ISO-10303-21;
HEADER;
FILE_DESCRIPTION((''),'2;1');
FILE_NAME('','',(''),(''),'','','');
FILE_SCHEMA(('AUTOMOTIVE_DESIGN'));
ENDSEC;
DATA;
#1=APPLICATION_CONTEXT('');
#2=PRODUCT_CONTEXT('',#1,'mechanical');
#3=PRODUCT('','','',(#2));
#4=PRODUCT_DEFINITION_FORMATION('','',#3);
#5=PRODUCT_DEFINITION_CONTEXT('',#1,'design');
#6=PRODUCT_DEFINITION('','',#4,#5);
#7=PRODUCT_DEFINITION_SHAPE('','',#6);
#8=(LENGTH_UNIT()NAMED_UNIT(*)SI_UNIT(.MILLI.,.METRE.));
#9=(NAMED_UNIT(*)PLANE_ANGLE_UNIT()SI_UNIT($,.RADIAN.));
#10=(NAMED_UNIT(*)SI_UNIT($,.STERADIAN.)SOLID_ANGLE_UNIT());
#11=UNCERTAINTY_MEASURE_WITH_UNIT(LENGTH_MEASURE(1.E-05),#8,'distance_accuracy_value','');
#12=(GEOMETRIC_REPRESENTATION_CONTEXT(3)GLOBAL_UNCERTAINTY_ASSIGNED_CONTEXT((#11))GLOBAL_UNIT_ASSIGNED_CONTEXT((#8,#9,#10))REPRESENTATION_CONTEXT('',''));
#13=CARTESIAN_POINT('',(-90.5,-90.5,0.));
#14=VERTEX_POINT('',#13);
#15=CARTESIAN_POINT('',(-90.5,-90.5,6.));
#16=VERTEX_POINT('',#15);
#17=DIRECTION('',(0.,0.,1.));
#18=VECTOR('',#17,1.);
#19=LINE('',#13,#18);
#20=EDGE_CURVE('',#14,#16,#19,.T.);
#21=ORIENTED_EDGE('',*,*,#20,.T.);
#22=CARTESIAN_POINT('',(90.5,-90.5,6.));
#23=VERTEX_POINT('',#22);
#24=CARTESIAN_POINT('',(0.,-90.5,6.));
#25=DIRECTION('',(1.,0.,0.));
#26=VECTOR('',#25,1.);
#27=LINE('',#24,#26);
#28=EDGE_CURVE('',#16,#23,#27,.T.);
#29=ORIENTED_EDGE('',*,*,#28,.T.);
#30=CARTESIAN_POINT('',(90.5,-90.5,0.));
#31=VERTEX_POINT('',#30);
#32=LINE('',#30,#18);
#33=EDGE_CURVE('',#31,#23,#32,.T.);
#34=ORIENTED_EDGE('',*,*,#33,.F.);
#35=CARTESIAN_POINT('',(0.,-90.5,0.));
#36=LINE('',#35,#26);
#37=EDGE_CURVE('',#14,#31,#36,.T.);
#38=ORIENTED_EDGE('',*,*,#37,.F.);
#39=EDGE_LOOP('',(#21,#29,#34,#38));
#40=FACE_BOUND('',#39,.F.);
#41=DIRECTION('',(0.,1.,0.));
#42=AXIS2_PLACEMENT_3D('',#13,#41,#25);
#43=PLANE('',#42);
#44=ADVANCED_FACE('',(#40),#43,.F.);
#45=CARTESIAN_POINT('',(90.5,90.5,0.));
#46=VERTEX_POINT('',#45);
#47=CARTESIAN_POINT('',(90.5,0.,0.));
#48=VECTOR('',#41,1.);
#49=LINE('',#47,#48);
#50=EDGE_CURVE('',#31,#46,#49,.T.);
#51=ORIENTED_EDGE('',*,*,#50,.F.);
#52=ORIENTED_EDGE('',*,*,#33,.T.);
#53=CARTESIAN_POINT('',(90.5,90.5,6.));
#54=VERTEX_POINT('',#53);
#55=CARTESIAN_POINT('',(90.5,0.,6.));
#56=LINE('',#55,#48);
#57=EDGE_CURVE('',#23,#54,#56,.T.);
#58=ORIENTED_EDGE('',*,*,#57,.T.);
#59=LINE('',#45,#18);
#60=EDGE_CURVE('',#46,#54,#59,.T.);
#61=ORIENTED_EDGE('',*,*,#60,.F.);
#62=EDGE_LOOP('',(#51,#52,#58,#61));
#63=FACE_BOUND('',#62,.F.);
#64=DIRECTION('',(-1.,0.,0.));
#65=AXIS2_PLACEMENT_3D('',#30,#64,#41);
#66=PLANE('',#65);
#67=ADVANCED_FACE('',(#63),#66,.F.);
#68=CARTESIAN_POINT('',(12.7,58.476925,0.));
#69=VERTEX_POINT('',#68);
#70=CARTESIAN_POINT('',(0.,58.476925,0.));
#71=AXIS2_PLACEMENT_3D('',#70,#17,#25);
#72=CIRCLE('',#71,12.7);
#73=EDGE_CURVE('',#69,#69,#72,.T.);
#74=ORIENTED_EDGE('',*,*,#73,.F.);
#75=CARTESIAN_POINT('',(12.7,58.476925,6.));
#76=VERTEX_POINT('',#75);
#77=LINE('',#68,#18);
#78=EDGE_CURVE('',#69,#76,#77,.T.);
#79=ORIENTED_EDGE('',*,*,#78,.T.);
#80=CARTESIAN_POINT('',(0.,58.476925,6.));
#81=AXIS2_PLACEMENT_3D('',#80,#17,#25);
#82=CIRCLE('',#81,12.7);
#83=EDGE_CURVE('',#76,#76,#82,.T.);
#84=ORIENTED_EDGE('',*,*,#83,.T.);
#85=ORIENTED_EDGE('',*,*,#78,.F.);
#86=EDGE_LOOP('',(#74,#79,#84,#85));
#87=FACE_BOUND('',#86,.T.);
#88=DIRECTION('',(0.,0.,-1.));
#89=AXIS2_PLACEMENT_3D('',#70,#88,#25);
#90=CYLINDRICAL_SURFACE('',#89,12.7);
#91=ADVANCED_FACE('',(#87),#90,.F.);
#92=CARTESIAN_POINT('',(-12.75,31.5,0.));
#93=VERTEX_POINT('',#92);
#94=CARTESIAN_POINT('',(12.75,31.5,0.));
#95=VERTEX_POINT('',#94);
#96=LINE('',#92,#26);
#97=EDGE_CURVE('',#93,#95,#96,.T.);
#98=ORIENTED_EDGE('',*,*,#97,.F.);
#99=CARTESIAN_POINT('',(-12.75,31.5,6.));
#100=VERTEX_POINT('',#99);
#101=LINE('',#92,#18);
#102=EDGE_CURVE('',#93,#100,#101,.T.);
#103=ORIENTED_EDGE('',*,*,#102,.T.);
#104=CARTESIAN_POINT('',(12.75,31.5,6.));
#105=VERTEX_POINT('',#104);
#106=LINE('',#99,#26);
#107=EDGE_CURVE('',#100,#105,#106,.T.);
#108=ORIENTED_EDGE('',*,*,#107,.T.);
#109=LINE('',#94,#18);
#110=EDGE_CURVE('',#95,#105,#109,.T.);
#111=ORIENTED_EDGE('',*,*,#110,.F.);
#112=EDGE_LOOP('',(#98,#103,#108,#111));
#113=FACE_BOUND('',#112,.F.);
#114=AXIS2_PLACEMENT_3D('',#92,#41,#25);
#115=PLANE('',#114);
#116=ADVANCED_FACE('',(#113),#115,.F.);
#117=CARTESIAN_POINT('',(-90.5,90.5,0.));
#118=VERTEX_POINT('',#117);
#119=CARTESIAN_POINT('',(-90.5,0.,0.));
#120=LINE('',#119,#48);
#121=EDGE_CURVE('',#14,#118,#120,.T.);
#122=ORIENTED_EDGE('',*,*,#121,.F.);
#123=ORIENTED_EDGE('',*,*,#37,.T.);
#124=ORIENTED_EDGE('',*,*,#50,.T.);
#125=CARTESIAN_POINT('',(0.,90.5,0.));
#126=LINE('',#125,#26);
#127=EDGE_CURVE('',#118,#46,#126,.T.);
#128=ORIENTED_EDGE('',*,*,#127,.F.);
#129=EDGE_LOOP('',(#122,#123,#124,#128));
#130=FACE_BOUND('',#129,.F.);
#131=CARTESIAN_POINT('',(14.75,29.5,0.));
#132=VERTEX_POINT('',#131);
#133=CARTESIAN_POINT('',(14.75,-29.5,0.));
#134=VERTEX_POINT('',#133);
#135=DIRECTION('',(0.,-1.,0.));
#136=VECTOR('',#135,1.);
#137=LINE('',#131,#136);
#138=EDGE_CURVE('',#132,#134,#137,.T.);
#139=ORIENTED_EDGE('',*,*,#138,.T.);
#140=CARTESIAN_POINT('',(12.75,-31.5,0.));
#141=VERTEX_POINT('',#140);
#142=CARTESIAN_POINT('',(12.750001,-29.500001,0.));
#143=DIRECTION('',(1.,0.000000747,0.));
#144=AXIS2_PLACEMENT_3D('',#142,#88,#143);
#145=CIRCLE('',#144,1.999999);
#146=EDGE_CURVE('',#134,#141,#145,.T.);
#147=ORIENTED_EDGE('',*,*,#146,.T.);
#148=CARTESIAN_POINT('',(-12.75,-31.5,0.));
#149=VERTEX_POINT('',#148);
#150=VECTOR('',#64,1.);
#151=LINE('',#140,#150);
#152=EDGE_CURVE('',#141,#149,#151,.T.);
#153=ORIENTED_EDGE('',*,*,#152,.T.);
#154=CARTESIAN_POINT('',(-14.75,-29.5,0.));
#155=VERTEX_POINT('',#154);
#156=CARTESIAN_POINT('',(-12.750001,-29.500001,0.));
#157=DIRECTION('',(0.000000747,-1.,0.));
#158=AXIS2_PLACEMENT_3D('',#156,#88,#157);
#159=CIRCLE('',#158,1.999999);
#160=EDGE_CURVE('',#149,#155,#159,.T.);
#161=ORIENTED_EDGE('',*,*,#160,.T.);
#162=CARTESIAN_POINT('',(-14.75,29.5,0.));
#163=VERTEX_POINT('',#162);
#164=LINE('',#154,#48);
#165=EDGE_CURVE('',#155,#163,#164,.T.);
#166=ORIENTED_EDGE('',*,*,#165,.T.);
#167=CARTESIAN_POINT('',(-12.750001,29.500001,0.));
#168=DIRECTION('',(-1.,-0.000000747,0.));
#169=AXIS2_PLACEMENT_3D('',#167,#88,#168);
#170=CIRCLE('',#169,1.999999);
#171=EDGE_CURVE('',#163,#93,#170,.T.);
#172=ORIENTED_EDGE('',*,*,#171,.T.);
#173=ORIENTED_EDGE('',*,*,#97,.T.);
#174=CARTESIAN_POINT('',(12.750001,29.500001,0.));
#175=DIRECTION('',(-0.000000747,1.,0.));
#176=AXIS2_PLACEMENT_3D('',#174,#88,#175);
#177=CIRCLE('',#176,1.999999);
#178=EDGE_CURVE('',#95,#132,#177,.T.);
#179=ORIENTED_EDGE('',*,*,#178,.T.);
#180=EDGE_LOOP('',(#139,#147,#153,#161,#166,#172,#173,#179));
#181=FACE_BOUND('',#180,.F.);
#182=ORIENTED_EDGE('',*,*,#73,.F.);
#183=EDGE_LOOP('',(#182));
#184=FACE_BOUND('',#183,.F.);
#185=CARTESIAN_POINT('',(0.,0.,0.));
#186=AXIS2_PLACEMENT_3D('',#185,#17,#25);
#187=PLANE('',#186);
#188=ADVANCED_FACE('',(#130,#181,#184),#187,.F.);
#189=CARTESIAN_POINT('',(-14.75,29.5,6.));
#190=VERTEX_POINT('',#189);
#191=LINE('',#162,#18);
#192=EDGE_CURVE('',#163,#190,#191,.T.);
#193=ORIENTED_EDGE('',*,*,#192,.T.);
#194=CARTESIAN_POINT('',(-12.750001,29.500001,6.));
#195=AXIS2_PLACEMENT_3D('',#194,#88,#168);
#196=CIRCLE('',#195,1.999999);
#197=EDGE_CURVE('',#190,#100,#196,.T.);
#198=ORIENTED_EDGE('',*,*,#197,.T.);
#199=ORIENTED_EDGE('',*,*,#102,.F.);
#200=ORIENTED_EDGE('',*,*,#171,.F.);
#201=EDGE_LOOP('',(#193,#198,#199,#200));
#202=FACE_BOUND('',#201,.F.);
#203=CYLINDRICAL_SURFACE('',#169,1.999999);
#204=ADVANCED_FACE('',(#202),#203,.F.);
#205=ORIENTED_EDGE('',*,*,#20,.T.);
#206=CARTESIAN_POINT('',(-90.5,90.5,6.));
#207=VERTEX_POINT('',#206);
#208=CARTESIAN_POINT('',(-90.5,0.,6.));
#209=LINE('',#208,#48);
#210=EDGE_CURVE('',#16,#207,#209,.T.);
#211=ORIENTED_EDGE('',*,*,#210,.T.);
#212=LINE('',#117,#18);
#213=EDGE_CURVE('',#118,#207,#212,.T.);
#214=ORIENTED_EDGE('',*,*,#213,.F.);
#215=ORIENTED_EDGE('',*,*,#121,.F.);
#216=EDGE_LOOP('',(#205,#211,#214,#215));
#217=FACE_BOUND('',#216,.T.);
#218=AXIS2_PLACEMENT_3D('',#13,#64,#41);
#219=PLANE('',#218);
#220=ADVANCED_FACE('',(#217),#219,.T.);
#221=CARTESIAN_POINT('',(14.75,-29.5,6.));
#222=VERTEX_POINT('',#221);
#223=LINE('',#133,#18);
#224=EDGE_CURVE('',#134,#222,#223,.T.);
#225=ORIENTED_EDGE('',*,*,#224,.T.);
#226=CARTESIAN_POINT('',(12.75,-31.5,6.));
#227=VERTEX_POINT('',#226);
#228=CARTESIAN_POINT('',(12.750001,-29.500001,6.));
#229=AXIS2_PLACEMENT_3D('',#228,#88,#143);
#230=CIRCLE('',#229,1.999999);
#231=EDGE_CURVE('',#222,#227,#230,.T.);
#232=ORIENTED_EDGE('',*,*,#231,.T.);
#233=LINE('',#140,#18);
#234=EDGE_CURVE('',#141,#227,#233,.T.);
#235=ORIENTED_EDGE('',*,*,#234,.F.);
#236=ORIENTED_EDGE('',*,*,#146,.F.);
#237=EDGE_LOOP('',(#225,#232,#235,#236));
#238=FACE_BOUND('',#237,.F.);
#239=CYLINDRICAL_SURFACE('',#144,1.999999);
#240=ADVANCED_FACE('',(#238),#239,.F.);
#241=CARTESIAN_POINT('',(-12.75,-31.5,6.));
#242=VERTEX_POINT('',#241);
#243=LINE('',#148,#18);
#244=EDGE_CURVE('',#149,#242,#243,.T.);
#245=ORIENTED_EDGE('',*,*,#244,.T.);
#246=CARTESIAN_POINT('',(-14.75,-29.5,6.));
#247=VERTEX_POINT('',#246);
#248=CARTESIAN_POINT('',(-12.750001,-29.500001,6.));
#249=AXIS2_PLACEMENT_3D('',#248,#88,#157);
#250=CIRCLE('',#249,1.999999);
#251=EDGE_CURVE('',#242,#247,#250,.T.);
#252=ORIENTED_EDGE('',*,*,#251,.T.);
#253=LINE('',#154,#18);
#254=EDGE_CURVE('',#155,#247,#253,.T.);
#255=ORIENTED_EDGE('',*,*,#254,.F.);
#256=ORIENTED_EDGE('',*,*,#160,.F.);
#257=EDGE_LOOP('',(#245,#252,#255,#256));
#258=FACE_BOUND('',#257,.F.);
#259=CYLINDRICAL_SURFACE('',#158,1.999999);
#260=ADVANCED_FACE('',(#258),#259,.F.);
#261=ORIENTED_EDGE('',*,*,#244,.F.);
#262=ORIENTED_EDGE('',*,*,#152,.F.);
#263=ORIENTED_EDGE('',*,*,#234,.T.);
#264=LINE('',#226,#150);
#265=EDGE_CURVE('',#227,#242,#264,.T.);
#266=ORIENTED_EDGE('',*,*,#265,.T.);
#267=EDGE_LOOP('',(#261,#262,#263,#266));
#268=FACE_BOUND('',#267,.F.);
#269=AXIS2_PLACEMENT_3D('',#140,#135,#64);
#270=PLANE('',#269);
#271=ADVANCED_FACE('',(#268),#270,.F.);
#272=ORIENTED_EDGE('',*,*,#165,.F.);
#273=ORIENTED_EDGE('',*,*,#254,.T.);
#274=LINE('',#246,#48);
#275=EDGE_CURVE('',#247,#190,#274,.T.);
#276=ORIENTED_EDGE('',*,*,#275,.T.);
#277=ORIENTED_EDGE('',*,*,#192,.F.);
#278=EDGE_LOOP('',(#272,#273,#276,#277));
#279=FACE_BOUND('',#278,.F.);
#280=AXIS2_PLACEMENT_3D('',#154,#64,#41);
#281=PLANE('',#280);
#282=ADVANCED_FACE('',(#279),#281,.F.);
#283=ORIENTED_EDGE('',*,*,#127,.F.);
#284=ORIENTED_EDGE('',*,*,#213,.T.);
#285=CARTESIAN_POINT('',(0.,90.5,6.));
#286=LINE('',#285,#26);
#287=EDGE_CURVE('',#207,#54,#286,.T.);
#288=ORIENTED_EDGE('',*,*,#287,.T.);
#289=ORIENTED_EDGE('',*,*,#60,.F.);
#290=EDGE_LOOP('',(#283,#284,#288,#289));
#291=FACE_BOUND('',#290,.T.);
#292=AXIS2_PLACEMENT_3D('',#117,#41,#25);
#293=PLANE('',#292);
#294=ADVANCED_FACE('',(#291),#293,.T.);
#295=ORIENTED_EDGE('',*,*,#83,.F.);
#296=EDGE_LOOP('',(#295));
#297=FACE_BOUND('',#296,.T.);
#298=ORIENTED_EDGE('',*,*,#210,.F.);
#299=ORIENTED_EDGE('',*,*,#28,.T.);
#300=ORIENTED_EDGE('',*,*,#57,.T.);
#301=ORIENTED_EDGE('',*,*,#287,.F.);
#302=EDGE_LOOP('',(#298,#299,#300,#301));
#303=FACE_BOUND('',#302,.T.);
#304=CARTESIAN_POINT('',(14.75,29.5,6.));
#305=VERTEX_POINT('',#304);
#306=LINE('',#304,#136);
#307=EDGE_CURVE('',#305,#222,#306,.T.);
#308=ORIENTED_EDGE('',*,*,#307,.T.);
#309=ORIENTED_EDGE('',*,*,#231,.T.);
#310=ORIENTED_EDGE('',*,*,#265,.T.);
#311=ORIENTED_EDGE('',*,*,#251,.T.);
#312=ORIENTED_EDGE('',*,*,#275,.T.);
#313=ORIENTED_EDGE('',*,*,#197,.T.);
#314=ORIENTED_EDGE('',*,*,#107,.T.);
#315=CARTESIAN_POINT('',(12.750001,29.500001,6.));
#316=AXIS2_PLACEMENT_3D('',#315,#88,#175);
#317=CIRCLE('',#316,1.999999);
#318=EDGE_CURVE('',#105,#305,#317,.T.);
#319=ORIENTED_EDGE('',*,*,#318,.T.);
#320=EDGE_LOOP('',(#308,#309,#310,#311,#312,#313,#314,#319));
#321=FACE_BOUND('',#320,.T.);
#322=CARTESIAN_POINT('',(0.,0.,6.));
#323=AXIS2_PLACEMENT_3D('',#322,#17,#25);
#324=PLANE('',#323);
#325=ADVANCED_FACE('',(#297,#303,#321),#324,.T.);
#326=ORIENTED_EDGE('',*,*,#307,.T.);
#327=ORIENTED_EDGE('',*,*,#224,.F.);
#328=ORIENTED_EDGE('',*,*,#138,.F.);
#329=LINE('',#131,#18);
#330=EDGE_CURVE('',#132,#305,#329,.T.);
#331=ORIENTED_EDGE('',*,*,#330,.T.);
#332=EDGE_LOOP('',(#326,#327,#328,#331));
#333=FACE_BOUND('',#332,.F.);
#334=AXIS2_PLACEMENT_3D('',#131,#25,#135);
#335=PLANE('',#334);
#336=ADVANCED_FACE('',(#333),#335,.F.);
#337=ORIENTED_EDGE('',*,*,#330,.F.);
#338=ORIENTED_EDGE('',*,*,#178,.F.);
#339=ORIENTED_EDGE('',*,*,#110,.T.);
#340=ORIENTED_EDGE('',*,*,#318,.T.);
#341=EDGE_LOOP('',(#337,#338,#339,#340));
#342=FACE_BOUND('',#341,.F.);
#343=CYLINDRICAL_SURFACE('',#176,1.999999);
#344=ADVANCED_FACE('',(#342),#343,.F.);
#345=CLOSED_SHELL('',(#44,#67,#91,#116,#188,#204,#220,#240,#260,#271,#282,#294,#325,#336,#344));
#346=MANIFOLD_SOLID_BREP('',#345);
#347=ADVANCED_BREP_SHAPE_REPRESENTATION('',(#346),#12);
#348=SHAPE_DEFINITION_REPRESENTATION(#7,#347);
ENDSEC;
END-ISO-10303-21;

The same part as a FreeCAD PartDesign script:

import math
import FreeCAD as App
import Part
import Sketcher
Q = App.Units.Quantity

doc = App.newDocument("Part")
body = doc.addObject("PartDesign::Body", "Body")

# Sketch on XY plane
sketch1 = body.newObject("Sketcher::SketchObject", "Sketch")
sketch1.AttachmentSupport = (doc.getObject("XY_Plane"), [""])
sketch1.MapMode = "FlatFace"
sketch1.addGeometry(Part.LineSegment(App.Vector(-90.5, 90.5, 0), App.Vector(-90.5, -90.5, 0)), False)
sketch1.addGeometry(Part.LineSegment(App.Vector(-90.5, -90.5, 0), App.Vector(90.5, -90.5, 0)), False)
sketch1.addGeometry(Part.LineSegment(App.Vector(90.5, -90.5, 0), App.Vector(90.5, 90.5, 0)), False)
sketch1.addGeometry(Part.LineSegment(App.Vector(90.5, 90.5, 0), App.Vector(-90.5, 90.5, 0)), False)
sketch1.addGeometry(Part.ArcOfCircle(Part.Circle(App.Vector(-12.750001, 29.500001, 0), App.Vector(0, 0, 1), 1.999999), math.radians(89.999957), math.radians(180.000043)), False)
sketch1.addGeometry(Part.LineSegment(App.Vector(-12.75, 31.5, 0), App.Vector(12.75, 31.5, 0)), False)
sketch1.addGeometry(Part.ArcOfCircle(Part.Circle(App.Vector(12.750001, 29.500001, 0), App.Vector(0, 0, 1), 1.999999), math.radians(-0.000043), math.radians(90.000043)), False)
sketch1.addGeometry(Part.LineSegment(App.Vector(14.75, 29.5, 0), App.Vector(14.75, -29.5, 0)), False)
sketch1.addGeometry(Part.ArcOfCircle(Part.Circle(App.Vector(12.750001, -29.500001, 0), App.Vector(0, 0, 1), 1.999999), math.radians(-90.000043), math.radians(0.000043)), False)
sketch1.addGeometry(Part.LineSegment(App.Vector(12.75, -31.5, 0), App.Vector(-12.75, -31.5, 0)), False)
sketch1.addGeometry(Part.ArcOfCircle(Part.Circle(App.Vector(-12.750001, -29.500001, 0), App.Vector(0, 0, 1), 1.999999), math.radians(179.999957), math.radians(270.000043)), False)
sketch1.addGeometry(Part.LineSegment(App.Vector(-14.75, -29.5, 0), App.Vector(-14.75, 29.5, 0)), False)
sketch1.addGeometry(Part.Circle(App.Vector(0, 58.476925, 0), App.Vector(0, 0, 1), 12.7), False)
sketch1.addConstraint(Sketcher.Constraint("Coincident", 0, 2, 1, 1))
sketch1.addConstraint(Sketcher.Constraint("Coincident", 1, 2, 2, 1))
sketch1.addConstraint(Sketcher.Constraint("Coincident", 2, 2, 3, 1))
sketch1.addConstraint(Sketcher.Constraint("Coincident", 3, 2, 0, 1))
sketch1.addConstraint(Sketcher.Constraint("Tangent", 4, 1, 5, 1))
sketch1.addConstraint(Sketcher.Constraint("Tangent", 5, 2, 6, 2))
sketch1.addConstraint(Sketcher.Constraint("Tangent", 6, 1, 7, 1))
sketch1.addConstraint(Sketcher.Constraint("Tangent", 7, 2, 8, 2))
sketch1.addConstraint(Sketcher.Constraint("Tangent", 8, 1, 9, 1))
sketch1.addConstraint(Sketcher.Constraint("Tangent", 9, 2, 10, 2))
sketch1.addConstraint(Sketcher.Constraint("Tangent", 10, 1, 11, 1))
sketch1.addConstraint(Sketcher.Constraint("Tangent", 11, 2, 4, 2))
sketch1.addConstraint(Sketcher.Constraint("Vertical", 0))
sketch1.addConstraint(Sketcher.Constraint("Horizontal", 1))
sketch1.addConstraint(Sketcher.Constraint("Vertical", 2))
sketch1.addConstraint(Sketcher.Constraint("Horizontal", 3))
sketch1.addConstraint(Sketcher.Constraint("Horizontal", 5))
sketch1.addConstraint(Sketcher.Constraint("Vertical", 7))
sketch1.addConstraint(Sketcher.Constraint("Horizontal", 9))
sketch1.addConstraint(Sketcher.Constraint("Vertical", 11))
sketch1.addConstraint(Sketcher.Constraint("Equal", 4, 6))
sketch1.addConstraint(Sketcher.Constraint("Equal", 6, 8))
sketch1.addConstraint(Sketcher.Constraint("Equal", 8, 10))
sketch1.addConstraint(Sketcher.Constraint("Symmetric", 4, 3, 8, 3, -1, 1))
sketch1.addConstraint(Sketcher.Constraint("Symmetric", 0, 2, 2, 2, -1, 1))
sketch1.addConstraint(Sketcher.Constraint("PointOnObject", 12, 3, -2))
sketch1.addConstraint(Sketcher.Constraint("Equal", 3, 0))
sketch1.addConstraint(Sketcher.Constraint("Radius", 4, Q("1.999999 mm")))
sketch1.addConstraint(Sketcher.Constraint("Diameter", 12, Q("25.4 mm")))
sketch1.addConstraint(Sketcher.Constraint("DistanceX", 1, 1, 1, 2, Q("181 mm")))
sketch1.addConstraint(Sketcher.Constraint("DistanceY", 7, 2, 7, 1, Q("59 mm")))
sketch1.addConstraint(Sketcher.Constraint("DistanceX", 5, 1, 5, 2, Q("25.5 mm")))
sketch1.addConstraint(Sketcher.Constraint("DistanceY", -1, 1, 12, 3, Q("58.476925 mm")))
pad1 = body.newObject("PartDesign::Pad", "Pad")
pad1.Profile = sketch1
pad1.Length = 6

doc.recompute()
